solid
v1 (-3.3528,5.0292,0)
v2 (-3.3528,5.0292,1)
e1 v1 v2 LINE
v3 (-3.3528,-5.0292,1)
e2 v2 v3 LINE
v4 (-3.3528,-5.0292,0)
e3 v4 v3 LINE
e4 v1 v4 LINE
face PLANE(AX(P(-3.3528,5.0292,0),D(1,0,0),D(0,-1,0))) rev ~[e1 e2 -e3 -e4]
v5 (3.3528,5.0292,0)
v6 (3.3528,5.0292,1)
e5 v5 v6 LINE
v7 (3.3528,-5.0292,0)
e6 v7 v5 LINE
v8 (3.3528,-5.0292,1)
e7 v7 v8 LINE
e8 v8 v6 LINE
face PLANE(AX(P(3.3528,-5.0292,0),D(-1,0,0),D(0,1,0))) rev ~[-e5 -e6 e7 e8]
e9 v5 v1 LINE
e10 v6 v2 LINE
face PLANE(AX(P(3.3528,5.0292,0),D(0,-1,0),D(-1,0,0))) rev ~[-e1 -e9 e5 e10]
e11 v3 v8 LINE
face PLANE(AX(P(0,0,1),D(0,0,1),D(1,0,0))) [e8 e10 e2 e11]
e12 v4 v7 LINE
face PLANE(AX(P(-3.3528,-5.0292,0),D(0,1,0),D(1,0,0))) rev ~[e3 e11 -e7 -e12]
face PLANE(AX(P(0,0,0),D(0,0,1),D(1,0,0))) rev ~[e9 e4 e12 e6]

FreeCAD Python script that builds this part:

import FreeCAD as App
import Part
import Sketcher
from FreeCAD import Vector
Q = App.Units.Quantity


def add_polygon(sketch, points):
    """Adds a closed chain of lines whose ends are joined by coincident constraints."""
    first, n = sketch.GeometryCount, len(points)
    for a, b in zip(points, points[1:] + points[:1]):
        sketch.addGeometry(Part.LineSegment(App.Vector(*a, 0), App.Vector(*b, 0)), False)
    for i in range(n):
        sketch.addConstraint(Sketcher.Constraint("Coincident", first + i, 2, first + (i + 1) % n, 1))

doc = App.newDocument("Part")
body = doc.addObject("PartDesign::Body", "Body")

# Sketch on XY plane
sketch1 = body.newObject("Sketcher::SketchObject", "Sketch")
sketch1.AttachmentSupport = (doc.getObject("XY_Plane"), [""])
sketch1.MapMode = "FlatFace"
add_polygon(sketch1, [(-3, 5), (-3, -5), (3, -5), (3, 5)])  # lines 0-3
sketch1.addConstraint(Sketcher.Constraint("Vertical", 0))
sketch1.addConstraint(Sketcher.Constraint("Horizontal", 1))
sketch1.addConstraint(Sketcher.Constraint("Vertical", 2))
sketch1.addConstraint(Sketcher.Constraint("Horizontal", 3))
sketch1.addConstraint(Sketcher.Constraint("Symmetric", 0, 2, 2, 2, -1, 1))
sketch1.addConstraint(Sketcher.Constraint("DistanceX", 1, 1, 1, 2, Q("0.264 in")))
sketch1.addConstraint(Sketcher.Constraint("DistanceY", 0, 2, 0, 1, Q("0.396 in")))
pad1 = body.newObject("PartDesign::Pad", "Pad")
pad1.Profile = sketch1
pad1.Length = 1

doc.recompute()
